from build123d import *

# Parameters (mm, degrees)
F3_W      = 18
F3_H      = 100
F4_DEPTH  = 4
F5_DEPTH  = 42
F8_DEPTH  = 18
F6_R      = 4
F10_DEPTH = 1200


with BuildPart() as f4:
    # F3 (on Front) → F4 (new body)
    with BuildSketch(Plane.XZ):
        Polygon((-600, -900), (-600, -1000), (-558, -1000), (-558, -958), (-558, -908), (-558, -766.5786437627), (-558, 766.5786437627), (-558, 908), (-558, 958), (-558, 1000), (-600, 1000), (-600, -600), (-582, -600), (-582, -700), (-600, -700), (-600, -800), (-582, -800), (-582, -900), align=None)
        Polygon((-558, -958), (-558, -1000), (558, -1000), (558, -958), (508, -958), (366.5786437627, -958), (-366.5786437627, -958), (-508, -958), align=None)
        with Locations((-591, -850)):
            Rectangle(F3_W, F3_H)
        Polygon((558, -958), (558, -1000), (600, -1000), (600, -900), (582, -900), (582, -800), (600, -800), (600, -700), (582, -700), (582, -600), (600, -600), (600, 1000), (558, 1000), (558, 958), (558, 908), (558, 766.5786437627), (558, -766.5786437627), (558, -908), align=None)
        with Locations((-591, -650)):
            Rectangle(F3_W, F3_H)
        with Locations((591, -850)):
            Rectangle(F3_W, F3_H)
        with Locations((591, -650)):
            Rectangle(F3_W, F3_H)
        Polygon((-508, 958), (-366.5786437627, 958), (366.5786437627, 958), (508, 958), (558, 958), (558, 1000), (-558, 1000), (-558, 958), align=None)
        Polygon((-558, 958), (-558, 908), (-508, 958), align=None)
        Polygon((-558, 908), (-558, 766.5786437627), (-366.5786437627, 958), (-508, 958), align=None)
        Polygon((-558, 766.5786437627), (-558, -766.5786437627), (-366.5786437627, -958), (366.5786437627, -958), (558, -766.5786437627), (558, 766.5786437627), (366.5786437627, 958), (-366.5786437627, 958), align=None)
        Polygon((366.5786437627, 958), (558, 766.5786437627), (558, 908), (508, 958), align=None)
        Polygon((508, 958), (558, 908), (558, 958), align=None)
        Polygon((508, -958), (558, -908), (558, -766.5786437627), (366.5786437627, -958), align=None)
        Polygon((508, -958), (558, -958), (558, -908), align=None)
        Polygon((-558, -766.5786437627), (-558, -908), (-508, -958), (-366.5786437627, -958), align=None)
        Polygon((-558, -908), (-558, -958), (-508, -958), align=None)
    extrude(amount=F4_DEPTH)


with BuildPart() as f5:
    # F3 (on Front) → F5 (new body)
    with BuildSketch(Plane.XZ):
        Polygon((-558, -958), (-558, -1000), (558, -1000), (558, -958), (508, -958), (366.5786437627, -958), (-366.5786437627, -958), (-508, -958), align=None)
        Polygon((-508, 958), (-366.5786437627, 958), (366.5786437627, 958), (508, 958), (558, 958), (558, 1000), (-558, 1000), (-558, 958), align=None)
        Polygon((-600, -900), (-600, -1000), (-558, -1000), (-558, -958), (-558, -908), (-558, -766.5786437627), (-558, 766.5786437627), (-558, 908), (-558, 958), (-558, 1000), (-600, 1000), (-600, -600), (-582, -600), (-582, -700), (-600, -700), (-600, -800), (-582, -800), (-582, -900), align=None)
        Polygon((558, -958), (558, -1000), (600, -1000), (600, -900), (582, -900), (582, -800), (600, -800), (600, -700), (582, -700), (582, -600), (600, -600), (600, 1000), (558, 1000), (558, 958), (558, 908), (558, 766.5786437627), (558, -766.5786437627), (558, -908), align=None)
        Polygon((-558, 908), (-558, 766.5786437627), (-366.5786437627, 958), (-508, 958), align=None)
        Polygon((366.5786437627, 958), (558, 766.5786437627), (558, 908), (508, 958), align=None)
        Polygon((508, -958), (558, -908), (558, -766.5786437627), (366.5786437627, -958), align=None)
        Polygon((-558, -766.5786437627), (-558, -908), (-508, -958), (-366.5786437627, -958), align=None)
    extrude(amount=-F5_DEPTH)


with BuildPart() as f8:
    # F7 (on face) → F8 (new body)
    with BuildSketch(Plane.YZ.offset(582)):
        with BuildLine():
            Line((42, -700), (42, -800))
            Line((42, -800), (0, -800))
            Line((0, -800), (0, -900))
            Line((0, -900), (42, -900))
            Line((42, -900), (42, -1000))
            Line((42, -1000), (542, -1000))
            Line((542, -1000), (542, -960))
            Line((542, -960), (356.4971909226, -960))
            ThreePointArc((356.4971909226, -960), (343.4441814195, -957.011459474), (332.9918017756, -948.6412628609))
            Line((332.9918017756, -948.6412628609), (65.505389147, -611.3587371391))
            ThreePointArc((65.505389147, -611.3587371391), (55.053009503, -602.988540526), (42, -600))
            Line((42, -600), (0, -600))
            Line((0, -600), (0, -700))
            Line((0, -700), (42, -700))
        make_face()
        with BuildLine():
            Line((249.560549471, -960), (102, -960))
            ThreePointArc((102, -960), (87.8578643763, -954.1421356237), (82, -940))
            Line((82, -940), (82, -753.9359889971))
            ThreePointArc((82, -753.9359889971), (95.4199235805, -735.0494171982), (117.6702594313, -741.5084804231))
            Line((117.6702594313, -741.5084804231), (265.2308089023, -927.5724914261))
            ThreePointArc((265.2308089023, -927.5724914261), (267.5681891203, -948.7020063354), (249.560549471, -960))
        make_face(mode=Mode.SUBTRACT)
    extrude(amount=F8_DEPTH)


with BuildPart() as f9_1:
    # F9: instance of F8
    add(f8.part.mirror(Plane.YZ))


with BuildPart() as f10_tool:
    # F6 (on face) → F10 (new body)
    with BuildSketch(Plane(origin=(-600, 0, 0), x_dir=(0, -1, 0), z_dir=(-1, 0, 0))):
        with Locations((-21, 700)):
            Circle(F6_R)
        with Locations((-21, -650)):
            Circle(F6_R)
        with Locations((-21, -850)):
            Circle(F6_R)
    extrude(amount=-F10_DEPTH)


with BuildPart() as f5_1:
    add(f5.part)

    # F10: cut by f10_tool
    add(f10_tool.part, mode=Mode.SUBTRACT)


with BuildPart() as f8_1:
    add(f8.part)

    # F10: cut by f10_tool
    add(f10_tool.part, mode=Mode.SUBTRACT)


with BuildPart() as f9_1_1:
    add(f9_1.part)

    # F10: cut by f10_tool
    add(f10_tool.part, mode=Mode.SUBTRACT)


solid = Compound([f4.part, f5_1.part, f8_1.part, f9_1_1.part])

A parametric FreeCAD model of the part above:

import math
import FreeCAD as App
import Part
import Sketcher

V = App.Vector
Q = App.Units.Quantity


def add_polygon(sketch, points):
    """Adds a closed chain of lines whose ends are joined by coincident constraints."""
    first, n = sketch.GeometryCount, len(points)
    for a, b in zip(points, points[1:] + points[:1]):
        sketch.addGeometry(Part.LineSegment(App.Vector(*a, 0), App.Vector(*b, 0)), False)
    for i in range(n):
        sketch.addConstraint(Sketcher.Constraint("Coincident", first + i, 2, first + (i + 1) % n, 1))

doc = App.newDocument("Part")
body = doc.addObject("PartDesign::Body", "Body")

sketch1 = body.newObject("Sketcher::SketchObject", "Sketch")
sketch1.AttachmentSupport = (doc.getObject("XZ_Plane"), [""])
sketch1.MapMode = "FlatFace"
add_polygon(sketch1, [(-600, -1000), (600, -1000), (600, 1000), (-600, 1000)])
sketch1.addConstraint([
    Sketcher.Constraint("Horizontal", 0),
    Sketcher.Constraint("Vertical", 1),
    Sketcher.Constraint("Horizontal", 2),
    Sketcher.Constraint("Vertical", 3),
    Sketcher.Constraint("Symmetric", 0, 2, 2, 2, -1, 1),
    Sketcher.Constraint("DistanceX", 0, 1, 0, 2, Q("1200 mm")),
    Sketcher.Constraint("DistanceY", 1, 1, 1, 2, Q("2000 mm")),
])
pad1 = body.newObject("PartDesign::Pad", "Pad")
pad1.Profile = sketch1
pad1.Length = 4
body2 = doc.addObject("PartDesign::Body", "Body001")

sketch2 = body2.newObject("Sketcher::SketchObject", "Sketch001")
sketch2.AttachmentSupport = (doc.getObject("XZ_Plane001"), [""])
sketch2.MapMode = "FlatFace"
add_polygon(sketch2, [(-600, 1000), (-600, -600), (-582, -600), (-582, -700), (-600, -700), (-600, -800), (-582, -800), (-582, -900), (-600, -900), (-600, -1000), (600, -1000), (600, -900), (582, -900), (582, -800), (600, -800), (600, -700), (582, -700), (582, -600), (600, -600), (600, 1000)])
add_polygon(sketch2, [(558, -958), (508, -958), (558, -908)])
add_polygon(sketch2, [(367, -958), (-367, -958), (-558, -767), (-558, 767), (-367, 958), (367, 958), (558, 767), (558, -767)])
add_polygon(sketch2, [(-508, -958), (-558, -958), (-558, -908)])
add_polygon(sketch2, [(508, 958), (558, 958), (558, 908)])
add_polygon(sketch2, [(-558, 908), (-558, 958), (-508, 958)])
sketch2.addConstraint([
    Sketcher.Constraint("Vertical", 0),
    Sketcher.Constraint("Horizontal", 1),
    Sketcher.Constraint("Vertical", 2),
    Sketcher.Constraint("Horizontal", 3),
    Sketcher.Constraint("Vertical", 4),
    Sketcher.Constraint("Horizontal", 5),
    Sketcher.Constraint("Vertical", 6),
    Sketcher.Constraint("Horizontal", 7),
    Sketcher.Constraint("Vertical", 8),
    Sketcher.Constraint("Horizontal", 9),
    Sketcher.Constraint("Vertical", 10),
    Sketcher.Constraint("Horizontal", 11),
    Sketcher.Constraint("Vertical", 12),
    Sketcher.Constraint("Horizontal", 13),
    Sketcher.Constraint("Vertical", 14),
    Sketcher.Constraint("Horizontal", 15),
    Sketcher.Constraint("Vertical", 16),
    Sketcher.Constraint("Horizontal", 17),
    Sketcher.Constraint("Vertical", 18),
    Sketcher.Constraint("Horizontal", 19),
    Sketcher.Constraint("Horizontal", 20),
    Sketcher.Constraint("Vertical", 22),
    Sketcher.Constraint("Horizontal", 23),
    Sketcher.Constraint("Vertical", 25),
    Sketcher.Constraint("Horizontal", 27),
    Sketcher.Constraint("Vertical", 29),
    Sketcher.Constraint("Horizontal", 31),
    Sketcher.Constraint("Vertical", 32),
    Sketcher.Constraint("Horizontal", 34),
    Sketcher.Constraint("Vertical", 35),
    Sketcher.Constraint("Vertical", 37),
    Sketcher.Constraint("Horizontal", 38),
    Sketcher.Constraint("Symmetric", 8, 2, 18, 2, -1, 1),
    Sketcher.Constraint("Symmetric", 23, 2, 27, 2, -1, 1),
    Sketcher.Constraint("Symmetric", 24, 2, 28, 2, -1, 1),
    Sketcher.Constraint("Symmetric", 31, 2, 34, 2, -1, 1),
    Sketcher.Constraint("Symmetric", 22, 2, 37, 2, -1, 1),
    Sketcher.Constraint("Symmetric", 7, 2, 10, 2, -2),
    Sketcher.Constraint("Symmetric", 5, 2, 12, 2, -2),
    Sketcher.Constraint("Symmetric", 3, 2, 14, 2, -2),
    Sketcher.Constraint("Symmetric", 1, 2, 16, 2, -2),
    Sketcher.Constraint("Symmetric", 22, 2, 31, 2, -2),
    Sketcher.Constraint("Perpendicular", 21, 24),
    Sketcher.Constraint("Perpendicular", 24, 26),
    Sketcher.Constraint("Perpendicular", 28, 30),
    Sketcher.Constraint("Perpendicular", 30, 33),
    Sketcher.Constraint("Parallel", 33, 36),
    Sketcher.Constraint("Perpendicular", 36, 39),
    Sketcher.Constraint("Horizontal", 22, 2, 23, 2),
    Sketcher.Constraint("Horizontal", 25, 2, 28, 2),
    Sketcher.Constraint("Horizontal", 24, 2, 29, 2),
    Sketcher.Constraint("Horizontal", 21, 2, 32, 2),
    Sketcher.Constraint("Horizontal", 35, 2, 39, 2),
    Sketcher.Constraint("Vertical", 0, 2, 3, 2),
    Sketcher.Constraint("Vertical", 2, 2, 5, 2),
    Sketcher.Constraint("Vertical", 4, 2, 7, 2),
    Sketcher.Constraint("Vertical", 23, 2, 26, 2),
    Sketcher.Constraint("Vertical", 22, 2, 28, 2),
    Sketcher.Constraint("Vertical", 20, 2, 36, 2),
    Sketcher.Constraint("Equal", 2, 4),
    Sketcher.Constraint("Equal", 4, 6),
    Sketcher.Constraint("Equal", 6, 8),
    Sketcher.Constraint("DistanceX", 1, 1, 1, 2, Q("18 mm")),
    Sketcher.Constraint("DistanceX", 9, 1, 9, 2, Q("1200 mm")),
    Sketcher.Constraint("DistanceX", 20, 2, 20, 1, Q("50 mm")),
    Sketcher.Constraint("DistanceY", 0, 2, 0, 1, Q("1600 mm")),
    Sketcher.Constraint("DistanceY", 2, 2, 2, 1, Q("100 mm")),
    Sketcher.Constraint("DistanceX", -1, 1, 20, 2, Q("508 mm")),
    Sketcher.Constraint("DistanceY", 20, 2, -1, 1, Q("958 mm")),
    Sketcher.Constraint("Distance", 24, Q("270.710678 mm")),
])
pad2 = body2.newObject("PartDesign::Pad", "Pad001")
pad2.Profile = sketch2
pad2.Length = 42
pad2.Reversed = True
body3 = doc.addObject("PartDesign::Body", "Body002")

sketch3 = body3.newObject("Sketcher::SketchObject", "Sketch002")
sketch3.AttachmentSupport = (doc.getObject("YZ_Plane002"), [""])
sketch3.MapMode = "FlatFace"
sketch3.AttachmentOffset = App.Placement(V(0, 0, 582), App.Rotation())
sketch3.addGeometry([
    Part.LineSegment(V(42, -700, 0), V(42, -800, 0)),
    Part.LineSegment(V(42, -800, 0), V(0, -800, 0)),
    Part.LineSegment(V(0, -800, 0), V(0, -900, 0)),
    Part.LineSegment(V(0, -900, 0), V(42, -900, 0)),
    Part.LineSegment(V(42, -900, 0), V(42, -1000, 0)),
    Part.LineSegment(V(42, -1000, 0), V(542, -1000, 0)),
    Part.LineSegment(V(542, -1000, 0), V(542, -960, 0)),
    Part.LineSegment(V(542, -960, 0), V(356, -960, 0)),
    Part.ArcOfCircle(Part.Circle(V(356, -930, 0), V(0, 0, 1), 30), math.radians(-142), math.radians(-90)),
    Part.LineSegment(V(333, -949, 0), V(66, -611, 0)),
    Part.ArcOfCircle(Part.Circle(V(42, -630, 0), V(0, 0, 1), 30), math.radians(38), math.radians(90)),
    Part.LineSegment(V(42, -600, 0), V(0, -600, 0)),
    Part.LineSegment(V(0, -600, 0), V(0, -700, 0)),
    Part.LineSegment(V(0, -700, 0), V(42, -700, 0)),
    Part.ArcOfCircle(Part.Circle(V(250, -940, 0), V(0, 0, 1), 20), math.radians(-90), math.radians(38)),
    Part.LineSegment(V(250, -960, 0), V(102, -960, 0)),
    Part.ArcOfCircle(Part.Circle(V(102, -940, 0), V(0, 0, 1), 20), math.radians(180), math.radians(270)),
    Part.LineSegment(V(82, -940, 0), V(82, -754, 0)),
    Part.ArcOfCircle(Part.Circle(V(102, -754, 0), V(0, 0, 1), 20), math.radians(38), math.radians(180)),
    Part.LineSegment(V(118, -742, 0), V(265, -928, 0)),
], False)
sketch3.addConstraint([
    Sketcher.Constraint("Coincident", 0, 2, 1, 1),
    Sketcher.Constraint("Coincident", 1, 2, 2, 1),
    Sketcher.Constraint("Coincident", 2, 2, 3, 1),
    Sketcher.Constraint("Coincident", 3, 2, 4, 1),
    Sketcher.Constraint("Coincident", 4, 2, 5, 1),
    Sketcher.Constraint("Coincident", 5, 2, 6, 1),
    Sketcher.Constraint("Coincident", 6, 2, 7, 1),
    Sketcher.Constraint("Tangent", 7, 2, 8, 2),
    Sketcher.Constraint("Tangent", 8, 1, 9, 1),
    Sketcher.Constraint("Tangent", 9, 2, 10, 1),
    Sketcher.Constraint("Tangent", 10, 2, 11, 1),
    Sketcher.Constraint("Coincident", 11, 2, 12, 1),
    Sketcher.Constraint("Coincident", 12, 2, 13, 1),
    Sketcher.Constraint("Coincident", 13, 2, 0, 1),
    Sketcher.Constraint("Tangent", 14, 1, 15, 1),
    Sketcher.Constraint("Tangent", 15, 2, 16, 2),
    Sketcher.Constraint("Tangent", 16, 1, 17, 1),
    Sketcher.Constraint("Tangent", 17, 2, 18, 2),
    Sketcher.Constraint("Tangent", 18, 1, 19, 1),
    Sketcher.Constraint("Tangent", 19, 2, 14, 2),
    Sketcher.Constraint("Vertical", 0),
    Sketcher.Constraint("Horizontal", 1),
    Sketcher.Constraint("Vertical", 2),
    Sketcher.Constraint("Horizontal", 3),
    Sketcher.Constraint("Vertical", 4),
    Sketcher.Constraint("Horizontal", 5),
    Sketcher.Constraint("Vertical", 6),
    Sketcher.Constraint("Horizontal", 7),
    Sketcher.Constraint("Horizontal", 11),
    Sketcher.Constraint("Vertical", 12),
    Sketcher.Constraint("Horizontal", 13),
    Sketcher.Constraint("Horizontal", 15),
    Sketcher.Constraint("Vertical", 17),
    Sketcher.Constraint("Equal", 8, 10),
    Sketcher.Constraint("Equal", 14, 16),
    Sketcher.Constraint("Equal", 16, 18),
    Sketcher.Constraint("PointOnObject", 1, 2, -2),
    Sketcher.Constraint("PointOnObject", 11, 2, -2),
    Sketcher.Constraint("Parallel", 9, 19),
    Sketcher.Constraint("Horizontal", 7, 2, 14, 1),
    Sketcher.Constraint("Vertical", 10, 3, 0, 2),
    Sketcher.Constraint("Vertical", 0, 2, 3, 2),
    Sketcher.Constraint("Equal", 0, 2),
    Sketcher.Constraint("Equal", 2, 4),
    Sketcher.Constraint("Equal", 4, 12),
    Sketcher.Constraint("Radius", 8, Q("30 mm")),
    Sketcher.Constraint("Radius", 14, Q("20 mm")),
    Sketcher.Constraint("DistanceX", 1, 2, 1, 1, Q("42 mm")),
    Sketcher.Constraint("DistanceX", 5, 1, 5, 2, Q("500 mm")),
    Sketcher.Constraint("DistanceY", 0, 2, 0, 1, Q("100 mm")),
    Sketcher.Constraint("DistanceY", 6, 1, 6, 2, Q("40 mm")),
    Sketcher.Constraint("DistanceY", 8, 3, -1, 1, Q("930 mm")),
    Sketcher.Constraint("DistanceX", -1, 1, 16, 3, Q("102 mm")),
    Sketcher.Constraint("DistanceX", 7, 2, 7, 1, Q("185.502809 mm")),
    Sketcher.Constraint("DistanceX", 15, 2, 15, 1, Q("147.560549 mm")),
])
pad3 = body3.newObject("PartDesign::Pad", "Pad002")
pad3.Profile = sketch3
pad3.Length = 18
body4 = doc.addObject("PartDesign::Body", "Body003")
doc.recompute()

mirroring = doc.addObject("Part::Mirroring", "Mirroring")
mirroring.Source = body3
mirroring.Base = V(0, 0, 0)
mirroring.Normal = V(1, 0, 0)
body4.BaseFeature = mirroring
doc.recompute()
body5 = doc.addObject("PartDesign::Body", "Body004")
body5.AllowCompound = True

sketch4 = body5.newObject("Sketcher::SketchObject", "Sketch003")
sketch4.AttachmentSupport = (doc.getObject("YZ_Plane004"), [""])
sketch4.MapMode = "FlatFace"
sketch4.AttachmentOffset = App.Placement(V(0, 0, -600), App.Rotation())
sketch4.addGeometry([
    Part.Circle(V(21, 700, 0), V(0, 0, 1), 4),
    Part.Circle(V(21, -650, 0), V(0, 0, 1), 4),
    Part.Circle(V(21, -850, 0), V(0, 0, 1), 4),
], False)
sketch4.addConstraint([
    Sketcher.Constraint("Equal", 0, 1),
    Sketcher.Constraint("Equal", 1, 2),
    Sketcher.Constraint("Vertical", 0, 3, 1, 3),
    Sketcher.Constraint("Vertical", 1, 3, 2, 3),
    Sketcher.Constraint("Diameter", 0, Q("8 mm")),
    Sketcher.Constraint("DistanceX", -1, 1, 0, 3, Q("21 mm")),
    Sketcher.Constraint("DistanceY", -1, 1, 0, 3, Q("700 mm")),
    Sketcher.Constraint("DistanceY", 1, 3, -1, 1, Q("650 mm")),
    Sketcher.Constraint("DistanceY", 2, 3, -1, 1, Q("850 mm")),
])
pad4 = body5.newObject("PartDesign::Pad", "Pad003")
pad4.Profile = sketch4
pad4.Length = 1200
doc.recompute()

body6 = doc.addObject("PartDesign::Body", "Body005")
body6.BaseFeature = body5
boolean = body2.newObject("PartDesign::Boolean", "Boolean")
boolean.Type = "Cut"
boolean.addObjects([body6])
doc.recompute()

body7 = doc.addObject("PartDesign::Body", "Body006")
body7.BaseFeature = body5
boolean2 = body3.newObject("PartDesign::Boolean", "Boolean001")
boolean2.Type = "Cut"
boolean2.addObjects([body7])
doc.recompute()

boolean3 = body4.newObject("PartDesign::Boolean", "Boolean002")
boolean3.Type = "Cut"
boolean3.addObjects([body5])
mirroring.Visibility = False

doc.recompute()
